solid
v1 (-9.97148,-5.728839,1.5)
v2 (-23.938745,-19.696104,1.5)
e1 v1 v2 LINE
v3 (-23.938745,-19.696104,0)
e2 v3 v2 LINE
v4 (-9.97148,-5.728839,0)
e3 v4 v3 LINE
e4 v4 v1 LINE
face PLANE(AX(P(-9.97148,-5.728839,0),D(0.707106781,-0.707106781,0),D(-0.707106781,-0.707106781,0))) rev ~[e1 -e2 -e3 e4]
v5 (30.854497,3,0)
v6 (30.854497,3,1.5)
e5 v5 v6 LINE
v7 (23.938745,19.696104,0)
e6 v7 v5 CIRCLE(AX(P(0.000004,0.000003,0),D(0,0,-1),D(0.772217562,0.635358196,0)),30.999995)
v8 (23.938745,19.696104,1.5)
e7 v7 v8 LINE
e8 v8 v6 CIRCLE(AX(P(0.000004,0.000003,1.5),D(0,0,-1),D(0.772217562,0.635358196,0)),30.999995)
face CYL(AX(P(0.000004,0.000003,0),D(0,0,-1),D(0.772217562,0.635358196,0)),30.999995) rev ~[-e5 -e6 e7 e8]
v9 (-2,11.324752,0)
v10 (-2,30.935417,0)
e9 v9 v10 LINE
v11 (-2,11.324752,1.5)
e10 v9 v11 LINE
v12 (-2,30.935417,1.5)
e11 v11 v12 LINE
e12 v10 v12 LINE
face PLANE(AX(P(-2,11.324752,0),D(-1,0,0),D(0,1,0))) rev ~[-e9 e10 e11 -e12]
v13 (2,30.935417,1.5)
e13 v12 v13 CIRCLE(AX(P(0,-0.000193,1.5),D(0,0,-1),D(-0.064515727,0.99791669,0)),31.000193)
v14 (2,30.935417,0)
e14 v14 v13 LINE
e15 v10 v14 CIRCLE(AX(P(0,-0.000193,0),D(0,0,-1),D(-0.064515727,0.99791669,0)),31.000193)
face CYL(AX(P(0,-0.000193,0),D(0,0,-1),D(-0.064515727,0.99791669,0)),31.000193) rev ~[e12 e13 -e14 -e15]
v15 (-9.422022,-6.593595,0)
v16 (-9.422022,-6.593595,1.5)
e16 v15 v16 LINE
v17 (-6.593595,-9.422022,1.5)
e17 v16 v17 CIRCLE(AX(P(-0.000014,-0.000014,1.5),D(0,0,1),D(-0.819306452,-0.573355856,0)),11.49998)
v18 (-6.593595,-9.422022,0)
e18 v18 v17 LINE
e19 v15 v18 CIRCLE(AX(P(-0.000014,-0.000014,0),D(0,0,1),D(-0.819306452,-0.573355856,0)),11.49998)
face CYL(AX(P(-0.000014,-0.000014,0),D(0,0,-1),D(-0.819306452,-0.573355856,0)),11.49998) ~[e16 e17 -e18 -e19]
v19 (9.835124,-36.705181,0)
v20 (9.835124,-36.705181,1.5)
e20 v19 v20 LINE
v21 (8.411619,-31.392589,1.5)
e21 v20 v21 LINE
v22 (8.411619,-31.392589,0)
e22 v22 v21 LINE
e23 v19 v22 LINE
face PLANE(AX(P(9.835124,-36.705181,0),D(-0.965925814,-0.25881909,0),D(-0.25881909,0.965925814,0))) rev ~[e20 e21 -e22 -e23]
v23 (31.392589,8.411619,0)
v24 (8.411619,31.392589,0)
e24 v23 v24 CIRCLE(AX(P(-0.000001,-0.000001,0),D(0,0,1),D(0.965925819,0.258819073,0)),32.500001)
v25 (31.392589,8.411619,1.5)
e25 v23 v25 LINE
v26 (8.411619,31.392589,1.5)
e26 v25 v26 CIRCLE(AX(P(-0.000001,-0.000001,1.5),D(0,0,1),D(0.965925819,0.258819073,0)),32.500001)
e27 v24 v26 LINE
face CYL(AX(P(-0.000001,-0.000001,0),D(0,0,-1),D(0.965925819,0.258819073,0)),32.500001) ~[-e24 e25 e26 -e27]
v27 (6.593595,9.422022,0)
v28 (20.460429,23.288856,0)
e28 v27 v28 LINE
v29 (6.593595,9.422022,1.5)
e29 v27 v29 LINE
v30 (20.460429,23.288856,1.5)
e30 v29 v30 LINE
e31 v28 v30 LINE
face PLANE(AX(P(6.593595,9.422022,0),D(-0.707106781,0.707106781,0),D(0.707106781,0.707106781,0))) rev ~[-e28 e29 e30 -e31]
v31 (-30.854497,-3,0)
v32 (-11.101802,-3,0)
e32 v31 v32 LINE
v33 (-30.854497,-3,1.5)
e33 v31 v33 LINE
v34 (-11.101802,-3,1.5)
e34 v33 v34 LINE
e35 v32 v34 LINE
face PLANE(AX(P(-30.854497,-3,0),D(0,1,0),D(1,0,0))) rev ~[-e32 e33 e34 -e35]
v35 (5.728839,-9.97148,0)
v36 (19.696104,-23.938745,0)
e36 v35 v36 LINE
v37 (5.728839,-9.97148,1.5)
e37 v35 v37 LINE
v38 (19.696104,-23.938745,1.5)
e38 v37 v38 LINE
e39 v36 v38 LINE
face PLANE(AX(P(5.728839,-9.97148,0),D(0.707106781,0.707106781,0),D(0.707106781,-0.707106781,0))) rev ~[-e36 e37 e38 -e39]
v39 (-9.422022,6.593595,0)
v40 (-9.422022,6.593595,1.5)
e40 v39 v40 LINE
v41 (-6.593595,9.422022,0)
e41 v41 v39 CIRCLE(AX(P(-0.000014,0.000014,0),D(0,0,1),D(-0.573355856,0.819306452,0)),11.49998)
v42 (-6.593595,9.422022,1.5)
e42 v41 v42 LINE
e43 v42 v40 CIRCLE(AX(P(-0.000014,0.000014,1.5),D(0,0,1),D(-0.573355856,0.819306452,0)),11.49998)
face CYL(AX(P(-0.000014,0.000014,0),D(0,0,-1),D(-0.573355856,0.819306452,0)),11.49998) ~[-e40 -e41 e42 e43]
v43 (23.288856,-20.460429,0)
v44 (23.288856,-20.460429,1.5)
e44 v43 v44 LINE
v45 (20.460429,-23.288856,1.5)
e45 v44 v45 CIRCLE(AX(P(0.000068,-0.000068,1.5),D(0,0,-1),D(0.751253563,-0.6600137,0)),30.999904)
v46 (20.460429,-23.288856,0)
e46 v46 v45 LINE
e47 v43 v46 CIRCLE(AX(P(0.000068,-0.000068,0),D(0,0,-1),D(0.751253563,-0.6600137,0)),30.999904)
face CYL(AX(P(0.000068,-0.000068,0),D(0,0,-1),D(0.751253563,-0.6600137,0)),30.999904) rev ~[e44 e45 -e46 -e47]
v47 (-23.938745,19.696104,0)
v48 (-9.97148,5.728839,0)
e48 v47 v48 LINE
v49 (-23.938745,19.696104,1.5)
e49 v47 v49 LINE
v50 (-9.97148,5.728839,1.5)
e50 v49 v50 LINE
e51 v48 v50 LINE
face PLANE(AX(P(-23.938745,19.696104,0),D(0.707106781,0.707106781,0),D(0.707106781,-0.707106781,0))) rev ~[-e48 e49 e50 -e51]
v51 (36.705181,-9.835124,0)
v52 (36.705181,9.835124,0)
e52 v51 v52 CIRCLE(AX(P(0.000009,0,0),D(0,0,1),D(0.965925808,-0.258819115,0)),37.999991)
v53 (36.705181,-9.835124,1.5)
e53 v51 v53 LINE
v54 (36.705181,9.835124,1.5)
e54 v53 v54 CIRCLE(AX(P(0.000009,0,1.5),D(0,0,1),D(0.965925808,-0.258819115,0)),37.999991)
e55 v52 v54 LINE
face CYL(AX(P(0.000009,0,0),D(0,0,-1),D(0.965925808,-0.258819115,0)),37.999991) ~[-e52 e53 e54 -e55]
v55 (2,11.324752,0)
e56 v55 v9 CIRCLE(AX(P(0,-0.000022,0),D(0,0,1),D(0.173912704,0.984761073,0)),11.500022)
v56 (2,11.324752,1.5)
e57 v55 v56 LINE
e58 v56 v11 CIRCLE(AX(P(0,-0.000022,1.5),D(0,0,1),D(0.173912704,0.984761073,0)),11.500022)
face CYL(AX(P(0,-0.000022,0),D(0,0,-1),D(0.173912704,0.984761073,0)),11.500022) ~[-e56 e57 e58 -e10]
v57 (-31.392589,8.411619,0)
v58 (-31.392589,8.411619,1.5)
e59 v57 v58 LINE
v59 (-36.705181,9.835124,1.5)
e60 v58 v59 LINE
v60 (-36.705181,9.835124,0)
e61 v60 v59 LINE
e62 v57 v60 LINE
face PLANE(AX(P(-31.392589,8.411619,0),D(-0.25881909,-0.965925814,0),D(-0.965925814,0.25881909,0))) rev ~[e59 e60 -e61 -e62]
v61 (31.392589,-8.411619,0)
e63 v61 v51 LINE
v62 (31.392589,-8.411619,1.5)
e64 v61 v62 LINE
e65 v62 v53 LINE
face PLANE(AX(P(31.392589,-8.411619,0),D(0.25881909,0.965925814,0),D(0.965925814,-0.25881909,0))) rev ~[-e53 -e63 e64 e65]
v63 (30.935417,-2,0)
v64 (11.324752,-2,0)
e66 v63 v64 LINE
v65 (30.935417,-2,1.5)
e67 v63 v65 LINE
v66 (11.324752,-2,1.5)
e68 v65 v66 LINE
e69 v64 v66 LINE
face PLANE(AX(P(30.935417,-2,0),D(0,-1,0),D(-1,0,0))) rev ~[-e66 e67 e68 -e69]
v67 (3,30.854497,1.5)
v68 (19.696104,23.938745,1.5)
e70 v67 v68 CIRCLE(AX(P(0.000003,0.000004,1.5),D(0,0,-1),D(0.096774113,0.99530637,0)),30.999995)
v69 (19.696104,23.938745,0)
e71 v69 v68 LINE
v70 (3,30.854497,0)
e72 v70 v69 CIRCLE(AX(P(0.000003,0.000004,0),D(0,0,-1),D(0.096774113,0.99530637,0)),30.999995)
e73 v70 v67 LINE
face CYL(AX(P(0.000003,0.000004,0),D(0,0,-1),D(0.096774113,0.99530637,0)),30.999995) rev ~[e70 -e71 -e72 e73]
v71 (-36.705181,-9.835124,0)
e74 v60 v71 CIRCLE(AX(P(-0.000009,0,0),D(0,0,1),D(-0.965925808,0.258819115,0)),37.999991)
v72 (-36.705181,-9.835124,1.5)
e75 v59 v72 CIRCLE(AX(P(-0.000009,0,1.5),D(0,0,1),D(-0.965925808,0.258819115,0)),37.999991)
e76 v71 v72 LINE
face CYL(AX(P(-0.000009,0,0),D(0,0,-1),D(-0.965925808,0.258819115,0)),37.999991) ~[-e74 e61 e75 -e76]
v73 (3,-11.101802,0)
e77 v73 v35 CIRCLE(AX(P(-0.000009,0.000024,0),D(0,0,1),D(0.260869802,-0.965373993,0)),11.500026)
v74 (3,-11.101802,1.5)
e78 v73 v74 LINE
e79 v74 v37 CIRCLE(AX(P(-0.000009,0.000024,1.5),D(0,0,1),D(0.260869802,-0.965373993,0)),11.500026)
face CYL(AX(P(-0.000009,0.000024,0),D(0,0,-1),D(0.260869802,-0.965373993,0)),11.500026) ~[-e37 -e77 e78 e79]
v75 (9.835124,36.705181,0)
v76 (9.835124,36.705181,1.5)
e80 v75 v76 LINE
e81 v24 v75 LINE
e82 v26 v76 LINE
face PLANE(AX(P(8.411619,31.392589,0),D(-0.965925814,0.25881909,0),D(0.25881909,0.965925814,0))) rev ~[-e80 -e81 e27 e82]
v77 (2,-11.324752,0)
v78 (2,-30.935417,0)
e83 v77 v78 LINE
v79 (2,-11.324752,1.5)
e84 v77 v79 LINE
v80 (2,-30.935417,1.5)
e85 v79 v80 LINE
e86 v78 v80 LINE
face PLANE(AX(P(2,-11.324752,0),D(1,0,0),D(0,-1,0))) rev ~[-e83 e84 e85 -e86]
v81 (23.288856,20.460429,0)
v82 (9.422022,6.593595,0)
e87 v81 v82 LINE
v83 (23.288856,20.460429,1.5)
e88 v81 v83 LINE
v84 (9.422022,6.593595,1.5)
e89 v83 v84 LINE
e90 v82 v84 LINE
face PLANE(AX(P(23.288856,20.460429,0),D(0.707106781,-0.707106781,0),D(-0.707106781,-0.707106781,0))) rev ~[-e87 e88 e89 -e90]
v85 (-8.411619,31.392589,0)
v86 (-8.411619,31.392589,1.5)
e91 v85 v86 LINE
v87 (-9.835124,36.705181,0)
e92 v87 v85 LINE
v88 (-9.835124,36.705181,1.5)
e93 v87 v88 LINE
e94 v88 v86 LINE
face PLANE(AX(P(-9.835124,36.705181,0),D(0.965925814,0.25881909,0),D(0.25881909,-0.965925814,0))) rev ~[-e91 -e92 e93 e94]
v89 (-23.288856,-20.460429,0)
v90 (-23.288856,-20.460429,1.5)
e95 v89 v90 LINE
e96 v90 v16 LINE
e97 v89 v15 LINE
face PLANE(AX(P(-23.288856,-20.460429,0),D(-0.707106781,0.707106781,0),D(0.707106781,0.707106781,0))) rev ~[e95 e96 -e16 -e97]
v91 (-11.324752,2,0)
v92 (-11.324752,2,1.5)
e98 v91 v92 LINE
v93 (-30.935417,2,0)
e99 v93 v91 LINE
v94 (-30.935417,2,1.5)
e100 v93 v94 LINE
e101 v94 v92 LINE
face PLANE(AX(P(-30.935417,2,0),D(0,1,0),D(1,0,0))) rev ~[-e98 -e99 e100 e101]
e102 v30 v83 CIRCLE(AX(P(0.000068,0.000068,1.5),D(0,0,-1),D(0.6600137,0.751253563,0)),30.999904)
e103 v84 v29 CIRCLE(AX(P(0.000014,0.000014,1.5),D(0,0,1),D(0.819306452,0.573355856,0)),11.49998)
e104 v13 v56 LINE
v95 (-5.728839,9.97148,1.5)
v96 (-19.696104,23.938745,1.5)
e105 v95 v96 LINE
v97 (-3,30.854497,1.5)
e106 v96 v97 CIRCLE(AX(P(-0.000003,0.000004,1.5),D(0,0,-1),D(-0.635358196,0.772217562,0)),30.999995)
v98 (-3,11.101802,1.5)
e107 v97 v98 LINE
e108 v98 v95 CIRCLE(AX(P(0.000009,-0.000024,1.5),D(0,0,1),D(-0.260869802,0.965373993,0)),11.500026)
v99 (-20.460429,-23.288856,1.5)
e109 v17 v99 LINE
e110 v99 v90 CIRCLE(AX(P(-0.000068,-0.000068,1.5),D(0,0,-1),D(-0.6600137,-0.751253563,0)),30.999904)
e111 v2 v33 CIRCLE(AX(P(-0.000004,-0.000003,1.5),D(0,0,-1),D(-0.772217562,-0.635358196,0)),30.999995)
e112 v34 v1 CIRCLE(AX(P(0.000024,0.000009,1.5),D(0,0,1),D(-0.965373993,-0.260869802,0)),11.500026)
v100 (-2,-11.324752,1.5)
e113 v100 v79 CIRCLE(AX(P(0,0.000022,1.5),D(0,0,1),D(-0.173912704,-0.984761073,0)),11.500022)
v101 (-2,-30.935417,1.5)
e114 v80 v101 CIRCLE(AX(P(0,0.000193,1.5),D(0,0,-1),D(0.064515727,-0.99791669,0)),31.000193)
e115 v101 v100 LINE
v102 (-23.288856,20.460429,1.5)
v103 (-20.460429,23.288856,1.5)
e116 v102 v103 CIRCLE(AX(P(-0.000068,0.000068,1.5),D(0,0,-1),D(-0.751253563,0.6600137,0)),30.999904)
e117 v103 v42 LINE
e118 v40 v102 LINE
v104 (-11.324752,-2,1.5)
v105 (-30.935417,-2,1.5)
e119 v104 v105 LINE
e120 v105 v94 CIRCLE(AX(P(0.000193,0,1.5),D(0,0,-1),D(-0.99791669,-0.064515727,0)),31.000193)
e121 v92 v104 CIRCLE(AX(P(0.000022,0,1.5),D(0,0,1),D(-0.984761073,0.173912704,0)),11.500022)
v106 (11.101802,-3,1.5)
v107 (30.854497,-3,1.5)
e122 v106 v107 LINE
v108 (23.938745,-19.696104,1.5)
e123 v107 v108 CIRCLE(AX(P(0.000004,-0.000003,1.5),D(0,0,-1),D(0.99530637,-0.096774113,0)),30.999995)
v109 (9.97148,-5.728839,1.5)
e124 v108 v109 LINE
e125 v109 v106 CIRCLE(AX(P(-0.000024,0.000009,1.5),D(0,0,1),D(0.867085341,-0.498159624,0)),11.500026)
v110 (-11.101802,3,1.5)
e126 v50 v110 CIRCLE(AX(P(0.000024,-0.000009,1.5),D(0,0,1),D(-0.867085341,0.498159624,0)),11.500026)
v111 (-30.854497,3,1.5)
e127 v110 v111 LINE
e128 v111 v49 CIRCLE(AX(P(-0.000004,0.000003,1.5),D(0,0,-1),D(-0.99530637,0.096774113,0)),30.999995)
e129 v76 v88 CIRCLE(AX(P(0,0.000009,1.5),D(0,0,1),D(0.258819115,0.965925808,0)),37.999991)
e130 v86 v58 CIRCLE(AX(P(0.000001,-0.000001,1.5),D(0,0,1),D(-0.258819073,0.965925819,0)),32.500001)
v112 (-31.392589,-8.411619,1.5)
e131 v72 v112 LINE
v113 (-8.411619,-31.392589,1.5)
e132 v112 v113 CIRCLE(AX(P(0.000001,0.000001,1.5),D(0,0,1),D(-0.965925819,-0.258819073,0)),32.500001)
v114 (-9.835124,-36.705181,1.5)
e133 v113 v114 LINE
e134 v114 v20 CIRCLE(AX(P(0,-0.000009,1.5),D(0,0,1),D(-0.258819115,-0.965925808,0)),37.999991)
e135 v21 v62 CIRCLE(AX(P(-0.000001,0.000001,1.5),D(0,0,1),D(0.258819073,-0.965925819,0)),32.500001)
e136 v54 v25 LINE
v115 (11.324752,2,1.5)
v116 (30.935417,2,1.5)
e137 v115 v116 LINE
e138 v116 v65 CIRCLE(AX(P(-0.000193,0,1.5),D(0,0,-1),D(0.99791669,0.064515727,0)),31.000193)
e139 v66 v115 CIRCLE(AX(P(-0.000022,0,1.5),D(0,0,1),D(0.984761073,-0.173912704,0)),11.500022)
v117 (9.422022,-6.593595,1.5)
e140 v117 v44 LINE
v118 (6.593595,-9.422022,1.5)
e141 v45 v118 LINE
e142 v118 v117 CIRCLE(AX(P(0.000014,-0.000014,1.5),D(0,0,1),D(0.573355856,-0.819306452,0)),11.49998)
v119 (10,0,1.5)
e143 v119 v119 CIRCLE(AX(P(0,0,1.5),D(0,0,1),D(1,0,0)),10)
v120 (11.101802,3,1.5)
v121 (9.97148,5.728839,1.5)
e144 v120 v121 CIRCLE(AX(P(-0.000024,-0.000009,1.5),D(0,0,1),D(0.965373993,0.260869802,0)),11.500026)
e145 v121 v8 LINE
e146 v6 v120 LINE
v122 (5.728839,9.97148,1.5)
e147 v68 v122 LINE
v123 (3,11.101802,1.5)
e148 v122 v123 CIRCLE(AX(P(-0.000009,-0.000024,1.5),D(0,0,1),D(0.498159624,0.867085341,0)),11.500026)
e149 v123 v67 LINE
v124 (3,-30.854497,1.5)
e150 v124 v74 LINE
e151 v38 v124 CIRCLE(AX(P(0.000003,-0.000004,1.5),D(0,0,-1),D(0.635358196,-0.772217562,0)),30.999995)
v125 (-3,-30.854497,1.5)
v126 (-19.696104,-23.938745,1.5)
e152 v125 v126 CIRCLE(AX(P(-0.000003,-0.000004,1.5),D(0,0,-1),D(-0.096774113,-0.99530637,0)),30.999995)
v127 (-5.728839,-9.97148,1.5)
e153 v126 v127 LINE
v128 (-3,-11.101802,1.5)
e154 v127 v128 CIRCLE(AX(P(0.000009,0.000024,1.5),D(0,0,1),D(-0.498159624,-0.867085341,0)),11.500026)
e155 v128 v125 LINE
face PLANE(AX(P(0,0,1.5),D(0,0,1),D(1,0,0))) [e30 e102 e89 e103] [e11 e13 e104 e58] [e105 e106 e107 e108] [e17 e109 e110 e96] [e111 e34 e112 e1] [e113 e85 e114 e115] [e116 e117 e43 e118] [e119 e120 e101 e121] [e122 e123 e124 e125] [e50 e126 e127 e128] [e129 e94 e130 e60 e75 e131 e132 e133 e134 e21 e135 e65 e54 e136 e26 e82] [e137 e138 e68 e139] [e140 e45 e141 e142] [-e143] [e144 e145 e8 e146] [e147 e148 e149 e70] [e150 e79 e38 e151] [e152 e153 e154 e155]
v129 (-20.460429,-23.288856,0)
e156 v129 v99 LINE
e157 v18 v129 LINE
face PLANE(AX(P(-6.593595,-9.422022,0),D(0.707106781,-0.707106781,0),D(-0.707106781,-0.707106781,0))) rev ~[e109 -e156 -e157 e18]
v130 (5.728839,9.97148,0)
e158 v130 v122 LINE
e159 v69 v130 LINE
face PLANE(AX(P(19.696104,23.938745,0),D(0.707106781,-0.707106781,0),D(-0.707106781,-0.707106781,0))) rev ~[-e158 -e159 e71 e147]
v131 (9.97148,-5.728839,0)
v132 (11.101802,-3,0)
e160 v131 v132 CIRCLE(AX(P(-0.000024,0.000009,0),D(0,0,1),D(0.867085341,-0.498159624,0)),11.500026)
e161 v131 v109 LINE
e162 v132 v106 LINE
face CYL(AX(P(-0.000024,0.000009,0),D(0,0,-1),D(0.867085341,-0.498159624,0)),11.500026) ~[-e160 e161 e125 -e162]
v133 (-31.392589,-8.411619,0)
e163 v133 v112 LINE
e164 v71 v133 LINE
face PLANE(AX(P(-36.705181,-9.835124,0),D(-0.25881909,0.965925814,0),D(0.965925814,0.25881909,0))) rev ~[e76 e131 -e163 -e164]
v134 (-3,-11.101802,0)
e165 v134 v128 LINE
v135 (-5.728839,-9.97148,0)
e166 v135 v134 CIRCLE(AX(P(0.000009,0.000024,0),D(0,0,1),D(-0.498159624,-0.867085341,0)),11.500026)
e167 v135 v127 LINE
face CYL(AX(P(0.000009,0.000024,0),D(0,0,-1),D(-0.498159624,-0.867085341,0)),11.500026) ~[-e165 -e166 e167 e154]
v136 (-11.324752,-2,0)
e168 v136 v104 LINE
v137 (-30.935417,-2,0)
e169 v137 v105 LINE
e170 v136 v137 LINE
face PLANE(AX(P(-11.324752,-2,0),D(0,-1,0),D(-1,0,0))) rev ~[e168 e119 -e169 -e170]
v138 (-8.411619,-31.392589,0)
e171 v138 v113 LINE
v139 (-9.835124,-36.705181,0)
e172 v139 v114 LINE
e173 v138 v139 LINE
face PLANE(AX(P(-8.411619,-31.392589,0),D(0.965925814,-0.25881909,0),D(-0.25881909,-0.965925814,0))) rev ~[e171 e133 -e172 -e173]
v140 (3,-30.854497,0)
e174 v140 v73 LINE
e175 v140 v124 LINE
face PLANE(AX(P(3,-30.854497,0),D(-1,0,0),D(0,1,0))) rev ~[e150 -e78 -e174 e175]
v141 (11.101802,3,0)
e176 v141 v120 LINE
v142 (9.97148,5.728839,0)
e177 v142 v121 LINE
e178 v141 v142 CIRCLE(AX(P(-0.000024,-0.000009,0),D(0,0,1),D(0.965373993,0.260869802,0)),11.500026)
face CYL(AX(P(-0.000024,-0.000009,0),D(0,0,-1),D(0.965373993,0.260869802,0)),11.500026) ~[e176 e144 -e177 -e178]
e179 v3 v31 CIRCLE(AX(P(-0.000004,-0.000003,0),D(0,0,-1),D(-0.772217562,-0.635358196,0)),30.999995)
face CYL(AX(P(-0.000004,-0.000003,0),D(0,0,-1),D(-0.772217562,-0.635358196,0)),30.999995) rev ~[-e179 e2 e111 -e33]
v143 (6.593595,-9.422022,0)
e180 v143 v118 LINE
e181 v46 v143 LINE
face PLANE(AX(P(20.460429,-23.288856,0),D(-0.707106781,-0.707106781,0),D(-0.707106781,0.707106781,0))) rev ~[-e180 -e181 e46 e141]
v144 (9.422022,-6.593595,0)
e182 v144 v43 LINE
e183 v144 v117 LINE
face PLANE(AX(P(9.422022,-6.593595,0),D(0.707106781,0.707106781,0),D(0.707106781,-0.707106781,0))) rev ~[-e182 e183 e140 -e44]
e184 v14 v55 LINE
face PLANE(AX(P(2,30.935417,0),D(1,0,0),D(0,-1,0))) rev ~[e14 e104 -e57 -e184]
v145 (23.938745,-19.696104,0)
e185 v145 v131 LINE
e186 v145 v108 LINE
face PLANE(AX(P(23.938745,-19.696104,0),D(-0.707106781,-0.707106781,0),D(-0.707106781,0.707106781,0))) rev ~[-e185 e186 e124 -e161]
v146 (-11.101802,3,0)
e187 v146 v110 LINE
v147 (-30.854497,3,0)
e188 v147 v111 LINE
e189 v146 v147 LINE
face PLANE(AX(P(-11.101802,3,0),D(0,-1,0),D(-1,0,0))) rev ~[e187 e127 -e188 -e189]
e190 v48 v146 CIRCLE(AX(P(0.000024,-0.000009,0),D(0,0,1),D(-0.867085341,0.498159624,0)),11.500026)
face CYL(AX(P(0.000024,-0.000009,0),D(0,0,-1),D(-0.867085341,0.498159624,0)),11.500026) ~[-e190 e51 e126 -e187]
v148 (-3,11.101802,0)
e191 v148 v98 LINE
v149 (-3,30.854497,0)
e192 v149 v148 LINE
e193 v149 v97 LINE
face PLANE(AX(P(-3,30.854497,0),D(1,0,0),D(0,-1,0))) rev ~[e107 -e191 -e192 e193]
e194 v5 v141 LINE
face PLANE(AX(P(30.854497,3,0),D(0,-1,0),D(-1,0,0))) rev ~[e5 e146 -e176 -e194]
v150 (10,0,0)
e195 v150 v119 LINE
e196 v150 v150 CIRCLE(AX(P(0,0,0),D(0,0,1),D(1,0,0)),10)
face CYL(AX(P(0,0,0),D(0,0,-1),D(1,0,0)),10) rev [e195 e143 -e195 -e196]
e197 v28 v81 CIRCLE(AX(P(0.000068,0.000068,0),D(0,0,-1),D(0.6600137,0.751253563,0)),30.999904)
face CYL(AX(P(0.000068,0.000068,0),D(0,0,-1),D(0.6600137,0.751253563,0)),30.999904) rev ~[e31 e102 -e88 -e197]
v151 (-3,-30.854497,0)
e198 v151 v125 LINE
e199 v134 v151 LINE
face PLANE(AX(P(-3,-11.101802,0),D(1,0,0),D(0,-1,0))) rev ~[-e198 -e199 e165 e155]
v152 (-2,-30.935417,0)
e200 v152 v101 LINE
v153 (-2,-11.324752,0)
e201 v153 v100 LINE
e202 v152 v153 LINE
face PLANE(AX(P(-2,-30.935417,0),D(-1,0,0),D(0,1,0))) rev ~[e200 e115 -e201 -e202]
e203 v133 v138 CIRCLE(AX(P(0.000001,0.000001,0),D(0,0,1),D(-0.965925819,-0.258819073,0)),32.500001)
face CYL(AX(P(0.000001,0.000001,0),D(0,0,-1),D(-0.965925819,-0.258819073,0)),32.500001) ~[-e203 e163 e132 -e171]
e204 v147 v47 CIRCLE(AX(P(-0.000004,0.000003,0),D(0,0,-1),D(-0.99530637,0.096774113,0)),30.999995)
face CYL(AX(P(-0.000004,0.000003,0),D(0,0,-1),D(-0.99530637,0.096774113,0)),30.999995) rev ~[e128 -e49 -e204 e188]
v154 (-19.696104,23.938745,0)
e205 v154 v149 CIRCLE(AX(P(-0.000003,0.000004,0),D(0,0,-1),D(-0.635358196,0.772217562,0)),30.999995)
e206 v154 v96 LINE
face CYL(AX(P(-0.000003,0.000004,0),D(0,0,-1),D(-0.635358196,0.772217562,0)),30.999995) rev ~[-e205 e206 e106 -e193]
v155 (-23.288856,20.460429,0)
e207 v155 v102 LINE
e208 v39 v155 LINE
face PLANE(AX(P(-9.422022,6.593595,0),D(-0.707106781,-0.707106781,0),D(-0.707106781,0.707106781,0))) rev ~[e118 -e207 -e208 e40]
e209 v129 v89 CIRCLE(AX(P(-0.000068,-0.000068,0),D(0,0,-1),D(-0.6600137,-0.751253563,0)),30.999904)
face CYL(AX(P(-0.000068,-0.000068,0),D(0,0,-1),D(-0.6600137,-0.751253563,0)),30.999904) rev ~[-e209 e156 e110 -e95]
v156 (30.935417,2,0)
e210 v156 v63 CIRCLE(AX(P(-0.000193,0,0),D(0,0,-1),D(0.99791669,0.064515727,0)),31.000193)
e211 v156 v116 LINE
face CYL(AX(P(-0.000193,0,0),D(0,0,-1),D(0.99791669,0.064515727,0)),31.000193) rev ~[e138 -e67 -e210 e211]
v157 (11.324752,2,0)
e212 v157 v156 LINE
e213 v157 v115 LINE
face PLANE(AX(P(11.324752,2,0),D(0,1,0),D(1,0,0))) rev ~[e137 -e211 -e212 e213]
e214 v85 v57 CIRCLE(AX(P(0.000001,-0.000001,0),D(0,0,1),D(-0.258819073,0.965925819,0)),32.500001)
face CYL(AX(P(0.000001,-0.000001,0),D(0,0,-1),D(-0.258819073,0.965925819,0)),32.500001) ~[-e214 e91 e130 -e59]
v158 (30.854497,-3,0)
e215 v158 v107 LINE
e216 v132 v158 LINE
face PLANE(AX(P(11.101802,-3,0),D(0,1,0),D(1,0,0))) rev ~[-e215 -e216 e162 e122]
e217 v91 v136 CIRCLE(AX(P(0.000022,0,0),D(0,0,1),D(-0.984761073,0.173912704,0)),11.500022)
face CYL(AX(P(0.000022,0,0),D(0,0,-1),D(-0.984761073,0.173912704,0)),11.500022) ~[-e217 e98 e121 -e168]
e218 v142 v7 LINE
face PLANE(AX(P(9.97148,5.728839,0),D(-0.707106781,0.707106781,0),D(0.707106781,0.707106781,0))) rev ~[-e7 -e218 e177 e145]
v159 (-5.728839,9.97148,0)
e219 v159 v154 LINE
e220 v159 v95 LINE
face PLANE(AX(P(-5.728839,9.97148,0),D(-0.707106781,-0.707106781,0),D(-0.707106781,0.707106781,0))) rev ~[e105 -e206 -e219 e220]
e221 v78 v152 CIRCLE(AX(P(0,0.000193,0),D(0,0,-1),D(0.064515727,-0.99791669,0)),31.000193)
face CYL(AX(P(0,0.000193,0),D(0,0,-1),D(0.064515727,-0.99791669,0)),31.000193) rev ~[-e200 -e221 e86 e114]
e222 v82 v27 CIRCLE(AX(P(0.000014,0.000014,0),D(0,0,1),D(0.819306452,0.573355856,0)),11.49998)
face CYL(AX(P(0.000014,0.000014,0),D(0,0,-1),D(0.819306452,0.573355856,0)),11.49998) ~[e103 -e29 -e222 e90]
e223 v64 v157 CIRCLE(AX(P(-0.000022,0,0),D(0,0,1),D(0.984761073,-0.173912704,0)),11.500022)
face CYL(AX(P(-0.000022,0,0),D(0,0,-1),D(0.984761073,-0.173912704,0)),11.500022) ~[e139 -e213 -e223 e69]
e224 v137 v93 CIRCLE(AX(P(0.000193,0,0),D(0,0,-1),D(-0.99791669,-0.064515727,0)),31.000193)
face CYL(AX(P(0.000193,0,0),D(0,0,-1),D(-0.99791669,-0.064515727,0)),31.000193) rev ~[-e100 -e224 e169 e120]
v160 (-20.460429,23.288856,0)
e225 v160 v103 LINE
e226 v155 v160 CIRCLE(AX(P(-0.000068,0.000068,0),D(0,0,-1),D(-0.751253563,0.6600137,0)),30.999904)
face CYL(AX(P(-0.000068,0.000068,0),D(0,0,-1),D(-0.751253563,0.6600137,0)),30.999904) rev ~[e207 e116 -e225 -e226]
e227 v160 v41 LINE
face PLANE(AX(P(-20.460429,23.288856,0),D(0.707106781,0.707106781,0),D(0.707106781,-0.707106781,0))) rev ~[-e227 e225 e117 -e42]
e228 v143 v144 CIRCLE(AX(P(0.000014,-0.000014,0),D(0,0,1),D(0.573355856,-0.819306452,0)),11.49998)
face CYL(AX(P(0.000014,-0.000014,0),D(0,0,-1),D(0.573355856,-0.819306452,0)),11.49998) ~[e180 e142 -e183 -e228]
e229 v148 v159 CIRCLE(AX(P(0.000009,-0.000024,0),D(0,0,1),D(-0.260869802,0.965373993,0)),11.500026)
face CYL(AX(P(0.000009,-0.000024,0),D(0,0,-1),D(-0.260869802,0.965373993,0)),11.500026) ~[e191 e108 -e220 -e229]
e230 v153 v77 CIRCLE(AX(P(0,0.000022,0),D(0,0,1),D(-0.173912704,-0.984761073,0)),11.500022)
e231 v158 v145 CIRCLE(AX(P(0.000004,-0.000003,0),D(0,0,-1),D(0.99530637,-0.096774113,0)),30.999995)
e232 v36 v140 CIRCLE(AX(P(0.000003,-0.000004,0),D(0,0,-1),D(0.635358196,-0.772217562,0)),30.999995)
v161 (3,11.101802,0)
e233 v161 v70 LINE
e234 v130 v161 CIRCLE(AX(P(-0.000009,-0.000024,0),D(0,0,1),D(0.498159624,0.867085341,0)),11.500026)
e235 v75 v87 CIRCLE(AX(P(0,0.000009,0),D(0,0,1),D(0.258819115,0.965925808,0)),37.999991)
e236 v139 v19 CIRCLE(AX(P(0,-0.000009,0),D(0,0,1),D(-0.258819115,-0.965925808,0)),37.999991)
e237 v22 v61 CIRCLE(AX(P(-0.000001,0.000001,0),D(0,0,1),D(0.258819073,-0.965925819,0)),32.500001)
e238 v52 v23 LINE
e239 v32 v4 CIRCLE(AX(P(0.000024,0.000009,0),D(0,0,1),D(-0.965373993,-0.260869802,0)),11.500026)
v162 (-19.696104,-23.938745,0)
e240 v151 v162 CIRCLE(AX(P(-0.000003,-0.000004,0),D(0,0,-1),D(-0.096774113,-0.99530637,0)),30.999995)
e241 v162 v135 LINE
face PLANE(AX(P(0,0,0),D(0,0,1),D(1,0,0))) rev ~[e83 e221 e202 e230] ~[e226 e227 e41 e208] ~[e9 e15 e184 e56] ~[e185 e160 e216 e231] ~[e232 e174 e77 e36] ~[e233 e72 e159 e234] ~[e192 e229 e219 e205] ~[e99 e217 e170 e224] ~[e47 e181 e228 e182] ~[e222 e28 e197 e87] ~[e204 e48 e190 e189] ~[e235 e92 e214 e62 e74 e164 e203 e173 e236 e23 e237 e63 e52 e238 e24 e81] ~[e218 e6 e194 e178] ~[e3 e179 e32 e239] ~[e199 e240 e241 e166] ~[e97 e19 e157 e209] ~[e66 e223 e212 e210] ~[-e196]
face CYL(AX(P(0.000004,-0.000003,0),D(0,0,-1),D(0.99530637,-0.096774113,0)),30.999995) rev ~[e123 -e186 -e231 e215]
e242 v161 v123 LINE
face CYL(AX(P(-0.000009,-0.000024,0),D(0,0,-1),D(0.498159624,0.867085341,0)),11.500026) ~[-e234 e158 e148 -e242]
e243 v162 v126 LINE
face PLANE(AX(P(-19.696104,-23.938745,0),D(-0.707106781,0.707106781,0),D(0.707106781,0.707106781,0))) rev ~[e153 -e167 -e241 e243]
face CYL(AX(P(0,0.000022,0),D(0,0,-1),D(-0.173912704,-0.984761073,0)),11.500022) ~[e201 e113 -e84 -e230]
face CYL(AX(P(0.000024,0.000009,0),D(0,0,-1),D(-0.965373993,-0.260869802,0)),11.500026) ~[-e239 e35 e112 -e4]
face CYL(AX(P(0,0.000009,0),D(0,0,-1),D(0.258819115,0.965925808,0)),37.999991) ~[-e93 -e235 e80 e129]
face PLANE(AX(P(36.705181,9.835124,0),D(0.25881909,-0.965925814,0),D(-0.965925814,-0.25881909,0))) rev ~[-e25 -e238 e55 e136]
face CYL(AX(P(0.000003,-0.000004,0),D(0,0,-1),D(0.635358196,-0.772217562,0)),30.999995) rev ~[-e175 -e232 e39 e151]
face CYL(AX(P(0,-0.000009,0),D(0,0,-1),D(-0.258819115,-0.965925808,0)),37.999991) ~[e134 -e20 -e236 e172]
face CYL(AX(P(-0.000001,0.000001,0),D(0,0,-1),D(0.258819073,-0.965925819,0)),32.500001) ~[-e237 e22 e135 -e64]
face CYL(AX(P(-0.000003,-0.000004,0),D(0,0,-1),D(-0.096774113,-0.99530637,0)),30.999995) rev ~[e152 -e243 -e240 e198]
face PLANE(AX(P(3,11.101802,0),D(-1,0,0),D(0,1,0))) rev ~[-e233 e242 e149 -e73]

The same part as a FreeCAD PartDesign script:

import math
import FreeCAD as App
import Part
import Sketcher
from FreeCAD import Vector
Q = App.Units.Quantity

doc = App.newDocument("Part")
params = doc.addObject("Spreadsheet::Sheet", "Params")
for row, (alias, value) in enumerate([
    ("sketch1_diameter", "20 mm"),
    ("sketch1_radius", "32.500001 mm"),
    ("sketch1_length", "5.5 mm"),
    ("pad1_length", "1.5 mm"),
], start=1):
    params.set(f"A{row}", alias)
    params.set(f"B{row}", "=" + value)
    params.setAlias(f"B{row}", alias)

body = doc.addObject("PartDesign::Body", "Body")

# Sketch on XY plane
sketch1 = body.newObject("Sketcher::SketchObject", "Sketch")
sketch1.AttachmentSupport = (doc.getObject("XY_Plane"), [""])
sketch1.MapMode = "FlatFace"
sketch1.addGeometry([
    Part.LineSegment(Vector(-31.392589, 8.411619, 0), Vector(-36.705181, 9.835124, 0)),  # 0
    Part.ArcOfCircle(Part.Circle(Vector(-0.000009, 0, 0), Vector(0, 0, 1), 37.999991), math.radians(164.999996), math.radians(195.000004)),  # 1
    Part.LineSegment(Vector(-36.705181, -9.835124, 0), Vector(-31.392589, -8.411619, 0)),  # 2
    Part.ArcOfCircle(Part.Circle(Vector(0.000001, 0.000001, 0), Vector(0, 0, 1), 32.500001), math.radians(-164.999998), math.radians(-105.000002)),  # 3
    Part.LineSegment(Vector(-8.411619, -31.392589, 0), Vector(-9.835124, -36.705181, 0)),  # 4
    Part.ArcOfCircle(Part.Circle(Vector(0, -0.000009, 0), Vector(0, 0, 1), 37.999991), math.radians(-105.000004), math.radians(-74.999996)),  # 5
    Part.LineSegment(Vector(9.835124, -36.705181, 0), Vector(8.411619, -31.392589, 0)),  # 6
    Part.ArcOfCircle(Part.Circle(Vector(-0.000001, 0.000001, 0), Vector(0, 0, 1), 32.500001), math.radians(-74.999998), math.radians(-15.000002)),  # 7
    Part.LineSegment(Vector(31.392589, -8.411619, 0), Vector(36.705181, -9.835124, 0)),  # 8
    Part.ArcOfCircle(Part.Circle(Vector(0.000009, 0, 0), Vector(0, 0, 1), 37.999991), math.radians(-15.000004), math.radians(15.000004)),  # 9
    Part.LineSegment(Vector(36.705181, 9.835124, 0), Vector(31.392589, 8.411619, 0)),  # 10
    Part.ArcOfCircle(Part.Circle(Vector(-0.000001, -0.000001, 0), Vector(0, 0, 1), 32.500001), math.radians(15.000002), math.radians(74.999998)),  # 11
    Part.LineSegment(Vector(8.411619, 31.392589, 0), Vector(9.835124, 36.705181, 0)),  # 12
    Part.ArcOfCircle(Part.Circle(Vector(0, 0.000009, 0), Vector(0, 0, 1), 37.999991), math.radians(74.999996), math.radians(105.000004)),  # 13
    Part.LineSegment(Vector(-9.835124, 36.705181, 0), Vector(-8.411619, 31.392589, 0)),  # 14
    Part.ArcOfCircle(Part.Circle(Vector(0.000001, -0.000001, 0), Vector(0, 0, 1), 32.500001), math.radians(105.000002), math.radians(164.999998)),  # 15
    Part.ArcOfCircle(Part.Circle(Vector(0.000009, 0.000024, 0), Vector(0, 0, 1), 11.500026), math.radians(-119.878316), math.radians(-105.121679)),  # 16
    Part.LineSegment(Vector(-3, -11.101802, 0), Vector(-3, -30.854497, 0)),  # 17
    Part.ArcOfCircle(Part.Circle(Vector(-0.000003, -0.000004, 0), Vector(0, 0, 1), 30.999995), math.radians(-129.446556), math.radians(-95.55344)),  # 18
    Part.LineSegment(Vector(-19.696104, -23.938745, 0), Vector(-5.728839, -9.97148, 0)),  # 19
    Part.LineSegment(Vector(2, -11.324752, 0), Vector(2, -30.935417, 0)),  # 20
    Part.ArcOfCircle(Part.Circle(Vector(0, 0.000193, 0), Vector(0, 0, 1), 31.000193), math.radians(-93.699048), math.radians(-86.300952)),  # 21
    Part.LineSegment(Vector(-2, -30.935417, 0), Vector(-2, -11.324752, 0)),  # 22
    Part.ArcOfCircle(Part.Circle(Vector(0, 0.000022, 0), Vector(0, 0, 1), 11.500022), math.radians(-100.01539), math.radians(-79.98461)),  # 23
    Part.LineSegment(Vector(-9.97148, -5.728839, 0), Vector(-23.938745, -19.696104, 0)),  # 24
    Part.ArcOfCircle(Part.Circle(Vector(-0.000004, -0.000003, 0), Vector(0, 0, 1), 30.999995), math.radians(-174.44656), math.radians(-140.553444)),  # 25
    Part.LineSegment(Vector(-30.854497, -3, 0), Vector(-11.101802, -3, 0)),  # 26
    Part.ArcOfCircle(Part.Circle(Vector(0.000024, 0.000009, 0), Vector(0, 0, 1), 11.500026), math.radians(-164.878321), math.radians(-150.121684)),  # 27
    Part.LineSegment(Vector(-6.593595, -9.422022, 0), Vector(-20.460429, -23.288856, 0)),  # 28
    Part.ArcOfCircle(Part.Circle(Vector(-0.000068, -0.000068, 0), Vector(0, 0, 1), 30.999904), math.radians(-138.699082), math.radians(-131.300918)),  # 29
    Part.LineSegment(Vector(-23.288856, -20.460429, 0), Vector(-9.422022, -6.593595, 0)),  # 30
    Part.ArcOfCircle(Part.Circle(Vector(-0.000014, -0.000014, 0), Vector(0, 0, 1), 11.49998), math.radians(-145.015427), math.radians(-124.984573)),  # 31
    Part.LineSegment(Vector(5.728839, -9.97148, 0), Vector(19.696104, -23.938745, 0)),  # 32
    Part.ArcOfCircle(Part.Circle(Vector(0.000003, -0.000004, 0), Vector(0, 0, 1), 30.999995), math.radians(-84.44656), math.radians(-50.553444)),  # 33
    Part.LineSegment(Vector(3, -30.854497, 0), Vector(3, -11.101802, 0)),  # 34
    Part.ArcOfCircle(Part.Circle(Vector(-0.000009, 0.000024, 0), Vector(0, 0, 1), 11.500026), math.radians(-74.878321), math.radians(-60.121684)),  # 35
    Part.LineSegment(Vector(9.422022, -6.593595, 0), Vector(23.288856, -20.460429, 0)),  # 36
    Part.ArcOfCircle(Part.Circle(Vector(0.000068, -0.000068, 0), Vector(0, 0, 1), 30.999904), math.radians(-48.699082), math.radians(-41.300918)),  # 37
    Part.LineSegment(Vector(20.460429, -23.288856, 0), Vector(6.593595, -9.422022, 0)),  # 38
    Part.ArcOfCircle(Part.Circle(Vector(0.000014, -0.000014, 0), Vector(0, 0, 1), 11.49998), math.radians(-55.015427), math.radians(-34.984573)),  # 39
    Part.ArcOfCircle(Part.Circle(Vector(-0.000024, 0.000009, 0), Vector(0, 0, 1), 11.500026), math.radians(-29.878316), math.radians(-15.121679)),  # 40
    Part.LineSegment(Vector(11.101802, -3, 0), Vector(30.854497, -3, 0)),  # 41
    Part.ArcOfCircle(Part.Circle(Vector(0.000004, -0.000003, 0), Vector(0, 0, 1), 30.999995), math.radians(-39.446556), math.radians(-5.55344)),  # 42
    Part.LineSegment(Vector(23.938745, -19.696104, 0), Vector(9.97148, -5.728839, 0)),  # 43
    Part.LineSegment(Vector(-11.324752, -2, 0), Vector(-30.935417, -2, 0)),  # 44
    Part.ArcOfCircle(Part.Circle(Vector(0.000193, 0, 0), Vector(0, 0, 1), 31.000193), math.radians(176.300952), math.radians(183.699048)),  # 45
    Part.LineSegment(Vector(-30.935417, 2, 0), Vector(-11.324752, 2, 0)),  # 46
    Part.ArcOfCircle(Part.Circle(Vector(0.000022, 0, 0), Vector(0, 0, 1), 11.500022), math.radians(169.98461), math.radians(190.01539)),  # 47
    Part.ArcOfCircle(Part.Circle(Vector(0.000024, -0.000009, 0), Vector(0, 0, 1), 11.500026), math.radians(150.121684), math.radians(164.878321)),  # 48
    Part.LineSegment(Vector(-11.101802, 3, 0), Vector(-30.854497, 3, 0)),  # 49
    Part.ArcOfCircle(Part.Circle(Vector(-0.000004, 0.000003, 0), Vector(0, 0, 1), 30.999995), math.radians(140.553444), math.radians(174.44656)),  # 50
    Part.LineSegment(Vector(-23.938745, 19.696104, 0), Vector(-9.97148, 5.728839, 0)),  # 51
    Part.Circle(Vector(0, 0, 0), Vector(0, 0, 1), 10),  # 52
    Part.LineSegment(Vector(-9.422022, 6.593595, 0), Vector(-23.288856, 20.460429, 0)),  # 53
    Part.ArcOfCircle(Part.Circle(Vector(-0.000068, 0.000068, 0), Vector(0, 0, 1), 30.999904), math.radians(131.300918), math.radians(138.699082)),  # 54
    Part.LineSegment(Vector(-20.460429, 23.288856, 0), Vector(-6.593595, 9.422022, 0)),  # 55
    Part.ArcOfCircle(Part.Circle(Vector(-0.000014, 0.000014, 0), Vector(0, 0, 1), 11.49998), math.radians(124.984573), math.radians(145.015427)),  # 56
    Part.LineSegment(Vector(-5.728839, 9.97148, 0), Vector(-19.696104, 23.938745, 0)),  # 57
    Part.ArcOfCircle(Part.Circle(Vector(-0.000003, 0.000004, 0), Vector(0, 0, 1), 30.999995), math.radians(95.55344), math.radians(129.446556)),  # 58
    Part.LineSegment(Vector(-3, 30.854497, 0), Vector(-3, 11.101802, 0)),  # 59
    Part.ArcOfCircle(Part.Circle(Vector(0.000009, -0.000024, 0), Vector(0, 0, 1), 11.500026), math.radians(105.121679), math.radians(119.878316)),  # 60
    Part.ArcOfCircle(Part.Circle(Vector(0, -0.000193, 0), Vector(0, 0, 1), 31.000193), math.radians(86.300952), math.radians(93.699048)),  # 61
    Part.LineSegment(Vector(2, 30.935417, 0), Vector(2, 11.324752, 0)),  # 62
    Part.ArcOfCircle(Part.Circle(Vector(0, -0.000022, 0), Vector(0, 0, 1), 11.500022), math.radians(79.98461), math.radians(100.01539)),  # 63
    Part.LineSegment(Vector(-2, 11.324752, 0), Vector(-2, 30.935417, 0)),  # 64
    Part.LineSegment(Vector(6.593595, 9.422022, 0), Vector(20.460429, 23.288856, 0)),  # 65
    Part.ArcOfCircle(Part.Circle(Vector(0.000068, 0.000068, 0), Vector(0, 0, 1), 30.999904), math.radians(41.300918), math.radians(48.699082)),  # 66
    Part.LineSegment(Vector(23.288856, 20.460429, 0), Vector(9.422022, 6.593595, 0)),  # 67
    Part.ArcOfCircle(Part.Circle(Vector(0.000014, 0.000014, 0), Vector(0, 0, 1), 11.49998), math.radians(34.984573), math.radians(55.015427)),  # 68
    Part.LineSegment(Vector(11.324752, 2, 0), Vector(30.935417, 2, 0)),  # 69
    Part.ArcOfCircle(Part.Circle(Vector(-0.000193, 0, 0), Vector(0, 0, 1), 31.000193), math.radians(-3.699048), math.radians(3.699048)),  # 70
    Part.LineSegment(Vector(30.935417, -2, 0), Vector(11.324752, -2, 0)),  # 71
    Part.ArcOfCircle(Part.Circle(Vector(-0.000022, 0, 0), Vector(0, 0, 1), 11.500022), math.radians(-10.01539), math.radians(10.01539)),  # 72
    Part.LineSegment(Vector(9.97148, 5.728839, 0), Vector(23.938745, 19.696104, 0)),  # 73
    Part.ArcOfCircle(Part.Circle(Vector(0.000004, 0.000003, 0), Vector(0, 0, 1), 30.999995), math.radians(5.55344), math.radians(39.446556)),  # 74
    Part.LineSegment(Vector(30.854497, 3, 0), Vector(11.101802, 3, 0)),  # 75
    Part.ArcOfCircle(Part.Circle(Vector(-0.000024, -0.000009, 0), Vector(0, 0, 1), 11.500026), math.radians(15.121679), math.radians(29.878316)),  # 76
    Part.ArcOfCircle(Part.Circle(Vector(-0.000009, -0.000024, 0), Vector(0, 0, 1), 11.500026), math.radians(60.121684), math.radians(74.878321)),  # 77
    Part.LineSegment(Vector(3, 11.101802, 0), Vector(3, 30.854497, 0)),  # 78
    Part.ArcOfCircle(Part.Circle(Vector(0.000003, 0.000004, 0), Vector(0, 0, 1), 30.999995), math.radians(50.553444), math.radians(84.44656)),  # 79
    Part.LineSegment(Vector(19.696104, 23.938745, 0), Vector(5.728839, 9.97148, 0)),  # 80
], False)
sketch1.addConstraint([
    Sketcher.Constraint("Coincident", 0, 2, 1, 1),
    Sketcher.Constraint("Coincident", 1, 2, 2, 1),
    Sketcher.Constraint("Coincident", 2, 2, 3, 1),
    Sketcher.Constraint("Coincident", 3, 2, 4, 1),
    Sketcher.Constraint("Coincident", 4, 2, 5, 1),
    Sketcher.Constraint("Coincident", 5, 2, 6, 1),
    Sketcher.Constraint("Coincident", 6, 2, 7, 1),
    Sketcher.Constraint("Coincident", 7, 2, 8, 1),
    Sketcher.Constraint("Coincident", 8, 2, 9, 1),
    Sketcher.Constraint("Coincident", 9, 2, 10, 1),
    Sketcher.Constraint("Coincident", 10, 2, 11, 1),
    Sketcher.Constraint("Coincident", 11, 2, 12, 1),
    Sketcher.Constraint("Coincident", 12, 2, 13, 1),
    Sketcher.Constraint("Coincident", 13, 2, 14, 1),
    Sketcher.Constraint("Coincident", 14, 2, 15, 1),
    Sketcher.Constraint("Coincident", 15, 2, 0, 1),
    Sketcher.Constraint("Coincident", 16, 2, 17, 1),
    Sketcher.Constraint("Coincident", 17, 2, 18, 2),
    Sketcher.Constraint("Coincident", 18, 1, 19, 1),
    Sketcher.Constraint("Coincident", 19, 2, 16, 1),
    Sketcher.Constraint("Coincident", 20, 2, 21, 2),
    Sketcher.Constraint("Coincident", 21, 1, 22, 1),
    Sketcher.Constraint("Coincident", 22, 2, 23, 1),
    Sketcher.Constraint("Coincident", 23, 2, 20, 1),
    Sketcher.Constraint("Coincident", 24, 2, 25, 2),
    Sketcher.Constraint("Coincident", 25, 1, 26, 1),
    Sketcher.Constraint("Coincident", 26, 2, 27, 1),
    Sketcher.Constraint("Coincident", 27, 2, 24, 1),
    Sketcher.Constraint("Coincident", 28, 2, 29, 2),
    Sketcher.Constraint("Coincident", 29, 1, 30, 1),
    Sketcher.Constraint("Coincident", 30, 2, 31, 1),
    Sketcher.Constraint("Coincident", 31, 2, 28, 1),
    Sketcher.Constraint("Coincident", 32, 2, 33, 2),
    Sketcher.Constraint("Coincident", 33, 1, 34, 1),
    Sketcher.Constraint("Coincident", 34, 2, 35, 1),
    Sketcher.Constraint("Coincident", 35, 2, 32, 1),
    Sketcher.Constraint("Coincident", 36, 2, 37, 2),
    Sketcher.Constraint("Coincident", 37, 1, 38, 1),
    Sketcher.Constraint("Coincident", 38, 2, 39, 1),
    Sketcher.Constraint("Coincident", 39, 2, 36, 1),
    Sketcher.Constraint("Coincident", 40, 2, 41, 1),
    Sketcher.Constraint("Coincident", 41, 2, 42, 2),
    Sketcher.Constraint("Coincident", 42, 1, 43, 1),
    Sketcher.Constraint("Coincident", 43, 2, 40, 1),
    Sketcher.Constraint("Coincident", 44, 2, 45, 2),
    Sketcher.Constraint("Coincident", 45, 1, 46, 1),
    Sketcher.Constraint("Coincident", 46, 2, 47, 1),
    Sketcher.Constraint("Coincident", 47, 2, 44, 1),
    Sketcher.Constraint("Coincident", 48, 2, 49, 1),
    Sketcher.Constraint("Coincident", 49, 2, 50, 2),
    Sketcher.Constraint("Coincident", 50, 1, 51, 1),
    Sketcher.Constraint("Coincident", 51, 2, 48, 1),
    Sketcher.Constraint("Coincident", 53, 2, 54, 2),
    Sketcher.Constraint("Coincident", 54, 1, 55, 1),
    Sketcher.Constraint("Coincident", 55, 2, 56, 1),
    Sketcher.Constraint("Coincident", 56, 2, 53, 1),
    Sketcher.Constraint("Coincident", 57, 2, 58, 2),
    Sketcher.Constraint("Coincident", 58, 1, 59, 1),
    Sketcher.Constraint("Coincident", 59, 2, 60, 1),
    Sketcher.Constraint("Coincident", 60, 2, 57, 1),
    Sketcher.Constraint("Coincident", 61, 1, 62, 1),
    Sketcher.Constraint("Coincident", 62, 2, 63, 1),
    Sketcher.Constraint("Coincident", 63, 2, 64, 1),
    Sketcher.Constraint("Coincident", 64, 2, 61, 2),
    Sketcher.Constraint("Coincident", 65, 2, 66, 2),
    Sketcher.Constraint("Coincident", 66, 1, 67, 1),
    Sketcher.Constraint("Coincident", 67, 2, 68, 1),
    Sketcher.Constraint("Coincident", 68, 2, 65, 1),
    Sketcher.Constraint("Coincident", 69, 2, 70, 2),
    Sketcher.Constraint("Coincident", 70, 1, 71, 1),
    Sketcher.Constraint("Coincident", 71, 2, 72, 1),
    Sketcher.Constraint("Coincident", 72, 2, 69, 1),
    Sketcher.Constraint("Coincident", 73, 2, 74, 2),
    Sketcher.Constraint("Coincident", 74, 1, 75, 1),
    Sketcher.Constraint("Coincident", 75, 2, 76, 1),
    Sketcher.Constraint("Coincident", 76, 2, 73, 1),
    Sketcher.Constraint("Coincident", 77, 2, 78, 1),
    Sketcher.Constraint("Coincident", 78, 2, 79, 2),
    Sketcher.Constraint("Coincident", 79, 1, 80, 1),
    Sketcher.Constraint("Coincident", 80, 2, 77, 1),
    Sketcher.Constraint("Vertical", 17),
    Sketcher.Constraint("Vertical", 20),
    Sketcher.Constraint("Vertical", 22),
    Sketcher.Constraint("Horizontal", 26),
    Sketcher.Constraint("Vertical", 34),
    Sketcher.Constraint("Horizontal", 41),
    Sketcher.Constraint("Horizontal", 44),
    Sketcher.Constraint("Horizontal", 46),
    Sketcher.Constraint("Horizontal", 49),
    Sketcher.Constraint("Vertical", 59),
    Sketcher.Constraint("Vertical", 62),
    Sketcher.Constraint("Vertical", 64),
    Sketcher.Constraint("Horizontal", 69),
    Sketcher.Constraint("Horizontal", 71),
    Sketcher.Constraint("Horizontal", 75),
    Sketcher.Constraint("Vertical", 78),
    Sketcher.Constraint("Coincident", 1, 3, -1, 1),
    Sketcher.Constraint("Coincident", 3, 3, -1, 1),
    Sketcher.Constraint("Coincident", 5, 3, -1, 1),
    Sketcher.Constraint("Coincident", 7, 3, -1, 1),
    Sketcher.Constraint("Coincident", 9, 3, -1, 1),
    Sketcher.Constraint("Coincident", 11, 3, -1, 1),
    Sketcher.Constraint("Coincident", 13, 3, -1, 1),
    Sketcher.Constraint("Coincident", 15, 3, -1, 1),
    Sketcher.Constraint("Coincident", 18, 3, -1, 1),
    Sketcher.Constraint("Coincident", 25, 3, -1, 1),
    Sketcher.Constraint("Coincident", 33, 3, -1, 1),
    Sketcher.Constraint("Coincident", 42, 3, -1, 1),
    Sketcher.Constraint("Coincident", 50, 3, -1, 1),
    Sketcher.Constraint("Coincident", 52, 3, -1, 1),
    Sketcher.Constraint("Coincident", 58, 3, -1, 1),
    Sketcher.Constraint("Coincident", 74, 3, -1, 1),
    Sketcher.Constraint("Coincident", 79, 3, -1, 1),
    Sketcher.Constraint("Coincident", 23, 3, 16, 3),
    Sketcher.Constraint("Coincident", 35, 3, 23, 3),
    Sketcher.Constraint("Coincident", 47, 3, 27, 3),
    Sketcher.Constraint("Coincident", 48, 3, 47, 3),
    Sketcher.Constraint("Coincident", 63, 3, 60, 3),
    Sketcher.Constraint("Coincident", 72, 3, 40, 3),
    Sketcher.Constraint("Coincident", 76, 3, 72, 3),
    Sketcher.Constraint("Coincident", 77, 3, 63, 3),
    Sketcher.Constraint("Equal", 1, 5),
    Sketcher.Constraint("Equal", 3, 7),
    Sketcher.Constraint("Equal", 5, 9),
    Sketcher.Constraint("Equal", 7, 11),
    Sketcher.Constraint("Equal", 9, 13),
    Sketcher.Constraint("Equal", 11, 15),
    Sketcher.Constraint("Equal", 18, 25),
    Sketcher.Constraint("Equal", 16, 27),
    Sketcher.Constraint("Equal", 25, 33),
    Sketcher.Constraint("Equal", 27, 35),
    Sketcher.Constraint("Equal", 29, 37),
    Sketcher.Constraint("Equal", 31, 39),
    Sketcher.Constraint("Equal", 35, 40),
    Sketcher.Constraint("Equal", 33, 42),
    Sketcher.Constraint("Equal", 21, 45),
    Sketcher.Constraint("Equal", 23, 47),
    Sketcher.Constraint("Equal", 40, 48),
    Sketcher.Constraint("Equal", 42, 50),
    Sketcher.Constraint("Equal", 37, 54),
    Sketcher.Constraint("Equal", 39, 56),
    Sketcher.Constraint("Equal", 50, 58),
    Sketcher.Constraint("Equal", 48, 60),
    Sketcher.Constraint("Equal", 45, 61),
    Sketcher.Constraint("Equal", 47, 63),
    Sketcher.Constraint("Equal", 54, 66),
    Sketcher.Constraint("Equal", 56, 68),
    Sketcher.Constraint("Equal", 61, 70),
    Sketcher.Constraint("Equal", 63, 72),
    Sketcher.Constraint("Equal", 58, 74),
    Sketcher.Constraint("Equal", 60, 76),
    Sketcher.Constraint("Equal", 76, 77),
    Sketcher.Constraint("Equal", 74, 79),
    Sketcher.Constraint("Symmetric", 40, 3, 47, 3, -1, 1),
    Sketcher.Constraint("Symmetric", 37, 3, 54, 3, -1, 1),
    Sketcher.Constraint("Symmetric", 39, 3, 56, 3, -1, 1),
    Sketcher.Constraint("Symmetric", 23, 3, 60, 3, -1, 1),
    Sketcher.Constraint("Symmetric", 21, 3, 61, 3, -1, 1),
    Sketcher.Constraint("Symmetric", 29, 3, 66, 3, -1, 1),
    Sketcher.Constraint("Symmetric", 31, 3, 68, 3, -1, 1),
    Sketcher.Constraint("Symmetric", 45, 3, 70, 3, -1, 1),
    Sketcher.Constraint("Symmetric", 29, 3, 37, 3, -2),
    Sketcher.Constraint("Symmetric", 31, 3, 39, 3, -2),
    Sketcher.Constraint("Symmetric", 20, 2, 21, 1, -2),
    Sketcher.Constraint("Symmetric", 16, 2, 34, 2, -2),
    Sketcher.Constraint("Symmetric", 26, 2, 40, 2, -2),
    Sketcher.Constraint("Symmetric", 45, 1, 69, 2, -2),
    Sketcher.Constraint("Perpendicular", 0, 4),
    Sketcher.Constraint("Perpendicular", 2, 6),
    Sketcher.Constraint("Perpendicular", 4, 8),
    Sketcher.Constraint("Perpendicular", 6, 10),
    Sketcher.Constraint("Perpendicular", 8, 12),
    Sketcher.Constraint("Perpendicular", 10, 14),
    Sketcher.Constraint("Parallel", 19, 24),
    Sketcher.Constraint("Parallel", 24, 28),
    Sketcher.Constraint("Parallel", 28, 30),
    Sketcher.Constraint("Perpendicular", 30, 32),
    Sketcher.Constraint("Parallel", 32, 36),
    Sketcher.Constraint("Parallel", 36, 38),
    Sketcher.Constraint("Parallel", 38, 43),
    Sketcher.Constraint("Parallel", 43, 51),
    Sketcher.Constraint("Parallel", 51, 53),
    Sketcher.Constraint("Parallel", 53, 55),
    Sketcher.Constraint("Parallel", 55, 57),
    Sketcher.Constraint("Perpendicular", 57, 65),
    Sketcher.Constraint("Parallel", 65, 67),
    Sketcher.Constraint("Parallel", 67, 73),
    Sketcher.Constraint("Parallel", 73, 80),
    Sketcher.Constraint("Horizontal", 4, 2, 5, 2),
    Sketcher.Constraint("Horizontal", 3, 2, 6, 2),
    Sketcher.Constraint("Horizontal", 2, 2, 7, 2),
    Sketcher.Constraint("Horizontal", 0, 2, 9, 2),
    Sketcher.Constraint("Horizontal", 12, 2, 13, 2),
    Sketcher.Constraint("Horizontal", 18, 1, 32, 2),
    Sketcher.Constraint("Horizontal", 19, 2, 35, 2),
    Sketcher.Constraint("Horizontal", 29, 1, 36, 2),
    Sketcher.Constraint("Horizontal", 28, 2, 37, 1),
    Sketcher.Constraint("Horizontal", 24, 2, 42, 1),
    Sketcher.Constraint("Horizontal", 62, 2, 63, 2),
    Sketcher.Constraint("Horizontal", 54, 1, 65, 2),
    Sketcher.Constraint("Horizontal", 53, 2, 66, 1),
    Sketcher.Constraint("Horizontal", 47, 2, 70, 1),
    Sketcher.Constraint("Horizontal", 50, 1, 73, 2),
    Sketcher.Constraint("Horizontal", 49, 2, 74, 1),
    Sketcher.Constraint("Horizontal", 59, 2, 77, 2),
    Sketcher.Constraint("Horizontal", 57, 2, 79, 1),
    Sketcher.Constraint("Vertical", 0, 2, 1, 2),
    Sketcher.Constraint("Vertical", 6, 2, 11, 2),
    Sketcher.Constraint("Vertical", 44, 2, 45, 1),
    Sketcher.Constraint("Vertical", 26, 2, 48, 2),
    Sketcher.Constraint("Vertical", 24, 2, 50, 1),
    Sketcher.Constraint("Vertical", 29, 1, 53, 2),
    Sketcher.Constraint("Vertical", 28, 2, 54, 1),
    Sketcher.Constraint("Vertical", 18, 1, 57, 2),
    Sketcher.Constraint("Vertical", 17, 2, 58, 1),
    Sketcher.Constraint("Vertical", 23, 2, 61, 1),
    Sketcher.Constraint("Equal", 75, 17),
    Sketcher.Constraint("Equal", 71, 20),
    Sketcher.Constraint("Equal", 19, 24),
    Sketcher.Constraint("Equal", 28, 30),
    Sketcher.Constraint("Diameter", 52, Q("20 mm")),
    Sketcher.Constraint("Radius", 3, Q("32.500001 mm")),
    Sketcher.Constraint("Angle", 0, Q("164.999997 deg")),
    Sketcher.Constraint("DistanceX", 16, 2, -1, 1, Q("3 mm")),
    Sketcher.Constraint("DistanceX", -1, 1, 20, 2, Q("2 mm")),
    Sketcher.Constraint("DistanceY", 25, 1, -1, 1, Q("3 mm")),
    Sketcher.Constraint("DistanceY", 44, 2, -1, 1, Q("2 mm")),
    Sketcher.Constraint("Distance", 0, Q("5.5 mm")),
    Sketcher.Constraint("Radius", 31, Q("11.49998 mm")),
    Sketcher.Constraint("Radius", 16, Q("11.500026 mm")),
    Sketcher.Constraint("Radius", 18, Q("30.999995 mm")),
    Sketcher.Constraint("Radius", 21, Q("31.000193 mm")),
    Sketcher.Constraint("Radius", 23, Q("11.500022 mm")),
    Sketcher.Constraint("Radius", 29, Q("30.999904 mm")),
    Sketcher.Constraint("DistanceY", 16, 2, -1, 1, Q("11.101802 mm")),
    Sketcher.Constraint("DistanceX", 44, 2, 44, 1, Q("19.610665 mm")),
    Sketcher.Constraint("DistanceX", 0, 2, -1, 1, Q("36.705181 mm")),
    Sketcher.Constraint("DistanceX", 3, 2, -1, 1, Q("8.411619 mm")),
    Sketcher.Constraint("DistanceX", 19, 2, -1, 1, Q("5.728839 mm")),
    Sketcher.Constraint("DistanceX", 28, 2, -1, 1, Q("20.460429 mm")),
    Sketcher.Constraint("DistanceY", 29, 1, -1, 1, Q("20.460429 mm")),
    Sketcher.Constraint("DistanceY", 31, 2, -1, 1, Q("9.422022 mm")),
    Sketcher.Constraint("DistanceX", -1, 1, 39, 2, Q("9.422022 mm")),
    Sketcher.Constraint("Distance", 28, Q("19.610665 mm")),
])
sketch1.setExpression("Constraints[220]", "Params.sketch1_diameter")
sketch1.setExpression("Constraints[221]", "Params.sketch1_radius")
sketch1.setExpression("Constraints[227]", "Params.sketch1_length")
pad1 = body.newObject("PartDesign::Pad", "Pad")
pad1.Profile = sketch1
pad1.setExpression("Length", "Params.pad1_length")

doc.recompute()
